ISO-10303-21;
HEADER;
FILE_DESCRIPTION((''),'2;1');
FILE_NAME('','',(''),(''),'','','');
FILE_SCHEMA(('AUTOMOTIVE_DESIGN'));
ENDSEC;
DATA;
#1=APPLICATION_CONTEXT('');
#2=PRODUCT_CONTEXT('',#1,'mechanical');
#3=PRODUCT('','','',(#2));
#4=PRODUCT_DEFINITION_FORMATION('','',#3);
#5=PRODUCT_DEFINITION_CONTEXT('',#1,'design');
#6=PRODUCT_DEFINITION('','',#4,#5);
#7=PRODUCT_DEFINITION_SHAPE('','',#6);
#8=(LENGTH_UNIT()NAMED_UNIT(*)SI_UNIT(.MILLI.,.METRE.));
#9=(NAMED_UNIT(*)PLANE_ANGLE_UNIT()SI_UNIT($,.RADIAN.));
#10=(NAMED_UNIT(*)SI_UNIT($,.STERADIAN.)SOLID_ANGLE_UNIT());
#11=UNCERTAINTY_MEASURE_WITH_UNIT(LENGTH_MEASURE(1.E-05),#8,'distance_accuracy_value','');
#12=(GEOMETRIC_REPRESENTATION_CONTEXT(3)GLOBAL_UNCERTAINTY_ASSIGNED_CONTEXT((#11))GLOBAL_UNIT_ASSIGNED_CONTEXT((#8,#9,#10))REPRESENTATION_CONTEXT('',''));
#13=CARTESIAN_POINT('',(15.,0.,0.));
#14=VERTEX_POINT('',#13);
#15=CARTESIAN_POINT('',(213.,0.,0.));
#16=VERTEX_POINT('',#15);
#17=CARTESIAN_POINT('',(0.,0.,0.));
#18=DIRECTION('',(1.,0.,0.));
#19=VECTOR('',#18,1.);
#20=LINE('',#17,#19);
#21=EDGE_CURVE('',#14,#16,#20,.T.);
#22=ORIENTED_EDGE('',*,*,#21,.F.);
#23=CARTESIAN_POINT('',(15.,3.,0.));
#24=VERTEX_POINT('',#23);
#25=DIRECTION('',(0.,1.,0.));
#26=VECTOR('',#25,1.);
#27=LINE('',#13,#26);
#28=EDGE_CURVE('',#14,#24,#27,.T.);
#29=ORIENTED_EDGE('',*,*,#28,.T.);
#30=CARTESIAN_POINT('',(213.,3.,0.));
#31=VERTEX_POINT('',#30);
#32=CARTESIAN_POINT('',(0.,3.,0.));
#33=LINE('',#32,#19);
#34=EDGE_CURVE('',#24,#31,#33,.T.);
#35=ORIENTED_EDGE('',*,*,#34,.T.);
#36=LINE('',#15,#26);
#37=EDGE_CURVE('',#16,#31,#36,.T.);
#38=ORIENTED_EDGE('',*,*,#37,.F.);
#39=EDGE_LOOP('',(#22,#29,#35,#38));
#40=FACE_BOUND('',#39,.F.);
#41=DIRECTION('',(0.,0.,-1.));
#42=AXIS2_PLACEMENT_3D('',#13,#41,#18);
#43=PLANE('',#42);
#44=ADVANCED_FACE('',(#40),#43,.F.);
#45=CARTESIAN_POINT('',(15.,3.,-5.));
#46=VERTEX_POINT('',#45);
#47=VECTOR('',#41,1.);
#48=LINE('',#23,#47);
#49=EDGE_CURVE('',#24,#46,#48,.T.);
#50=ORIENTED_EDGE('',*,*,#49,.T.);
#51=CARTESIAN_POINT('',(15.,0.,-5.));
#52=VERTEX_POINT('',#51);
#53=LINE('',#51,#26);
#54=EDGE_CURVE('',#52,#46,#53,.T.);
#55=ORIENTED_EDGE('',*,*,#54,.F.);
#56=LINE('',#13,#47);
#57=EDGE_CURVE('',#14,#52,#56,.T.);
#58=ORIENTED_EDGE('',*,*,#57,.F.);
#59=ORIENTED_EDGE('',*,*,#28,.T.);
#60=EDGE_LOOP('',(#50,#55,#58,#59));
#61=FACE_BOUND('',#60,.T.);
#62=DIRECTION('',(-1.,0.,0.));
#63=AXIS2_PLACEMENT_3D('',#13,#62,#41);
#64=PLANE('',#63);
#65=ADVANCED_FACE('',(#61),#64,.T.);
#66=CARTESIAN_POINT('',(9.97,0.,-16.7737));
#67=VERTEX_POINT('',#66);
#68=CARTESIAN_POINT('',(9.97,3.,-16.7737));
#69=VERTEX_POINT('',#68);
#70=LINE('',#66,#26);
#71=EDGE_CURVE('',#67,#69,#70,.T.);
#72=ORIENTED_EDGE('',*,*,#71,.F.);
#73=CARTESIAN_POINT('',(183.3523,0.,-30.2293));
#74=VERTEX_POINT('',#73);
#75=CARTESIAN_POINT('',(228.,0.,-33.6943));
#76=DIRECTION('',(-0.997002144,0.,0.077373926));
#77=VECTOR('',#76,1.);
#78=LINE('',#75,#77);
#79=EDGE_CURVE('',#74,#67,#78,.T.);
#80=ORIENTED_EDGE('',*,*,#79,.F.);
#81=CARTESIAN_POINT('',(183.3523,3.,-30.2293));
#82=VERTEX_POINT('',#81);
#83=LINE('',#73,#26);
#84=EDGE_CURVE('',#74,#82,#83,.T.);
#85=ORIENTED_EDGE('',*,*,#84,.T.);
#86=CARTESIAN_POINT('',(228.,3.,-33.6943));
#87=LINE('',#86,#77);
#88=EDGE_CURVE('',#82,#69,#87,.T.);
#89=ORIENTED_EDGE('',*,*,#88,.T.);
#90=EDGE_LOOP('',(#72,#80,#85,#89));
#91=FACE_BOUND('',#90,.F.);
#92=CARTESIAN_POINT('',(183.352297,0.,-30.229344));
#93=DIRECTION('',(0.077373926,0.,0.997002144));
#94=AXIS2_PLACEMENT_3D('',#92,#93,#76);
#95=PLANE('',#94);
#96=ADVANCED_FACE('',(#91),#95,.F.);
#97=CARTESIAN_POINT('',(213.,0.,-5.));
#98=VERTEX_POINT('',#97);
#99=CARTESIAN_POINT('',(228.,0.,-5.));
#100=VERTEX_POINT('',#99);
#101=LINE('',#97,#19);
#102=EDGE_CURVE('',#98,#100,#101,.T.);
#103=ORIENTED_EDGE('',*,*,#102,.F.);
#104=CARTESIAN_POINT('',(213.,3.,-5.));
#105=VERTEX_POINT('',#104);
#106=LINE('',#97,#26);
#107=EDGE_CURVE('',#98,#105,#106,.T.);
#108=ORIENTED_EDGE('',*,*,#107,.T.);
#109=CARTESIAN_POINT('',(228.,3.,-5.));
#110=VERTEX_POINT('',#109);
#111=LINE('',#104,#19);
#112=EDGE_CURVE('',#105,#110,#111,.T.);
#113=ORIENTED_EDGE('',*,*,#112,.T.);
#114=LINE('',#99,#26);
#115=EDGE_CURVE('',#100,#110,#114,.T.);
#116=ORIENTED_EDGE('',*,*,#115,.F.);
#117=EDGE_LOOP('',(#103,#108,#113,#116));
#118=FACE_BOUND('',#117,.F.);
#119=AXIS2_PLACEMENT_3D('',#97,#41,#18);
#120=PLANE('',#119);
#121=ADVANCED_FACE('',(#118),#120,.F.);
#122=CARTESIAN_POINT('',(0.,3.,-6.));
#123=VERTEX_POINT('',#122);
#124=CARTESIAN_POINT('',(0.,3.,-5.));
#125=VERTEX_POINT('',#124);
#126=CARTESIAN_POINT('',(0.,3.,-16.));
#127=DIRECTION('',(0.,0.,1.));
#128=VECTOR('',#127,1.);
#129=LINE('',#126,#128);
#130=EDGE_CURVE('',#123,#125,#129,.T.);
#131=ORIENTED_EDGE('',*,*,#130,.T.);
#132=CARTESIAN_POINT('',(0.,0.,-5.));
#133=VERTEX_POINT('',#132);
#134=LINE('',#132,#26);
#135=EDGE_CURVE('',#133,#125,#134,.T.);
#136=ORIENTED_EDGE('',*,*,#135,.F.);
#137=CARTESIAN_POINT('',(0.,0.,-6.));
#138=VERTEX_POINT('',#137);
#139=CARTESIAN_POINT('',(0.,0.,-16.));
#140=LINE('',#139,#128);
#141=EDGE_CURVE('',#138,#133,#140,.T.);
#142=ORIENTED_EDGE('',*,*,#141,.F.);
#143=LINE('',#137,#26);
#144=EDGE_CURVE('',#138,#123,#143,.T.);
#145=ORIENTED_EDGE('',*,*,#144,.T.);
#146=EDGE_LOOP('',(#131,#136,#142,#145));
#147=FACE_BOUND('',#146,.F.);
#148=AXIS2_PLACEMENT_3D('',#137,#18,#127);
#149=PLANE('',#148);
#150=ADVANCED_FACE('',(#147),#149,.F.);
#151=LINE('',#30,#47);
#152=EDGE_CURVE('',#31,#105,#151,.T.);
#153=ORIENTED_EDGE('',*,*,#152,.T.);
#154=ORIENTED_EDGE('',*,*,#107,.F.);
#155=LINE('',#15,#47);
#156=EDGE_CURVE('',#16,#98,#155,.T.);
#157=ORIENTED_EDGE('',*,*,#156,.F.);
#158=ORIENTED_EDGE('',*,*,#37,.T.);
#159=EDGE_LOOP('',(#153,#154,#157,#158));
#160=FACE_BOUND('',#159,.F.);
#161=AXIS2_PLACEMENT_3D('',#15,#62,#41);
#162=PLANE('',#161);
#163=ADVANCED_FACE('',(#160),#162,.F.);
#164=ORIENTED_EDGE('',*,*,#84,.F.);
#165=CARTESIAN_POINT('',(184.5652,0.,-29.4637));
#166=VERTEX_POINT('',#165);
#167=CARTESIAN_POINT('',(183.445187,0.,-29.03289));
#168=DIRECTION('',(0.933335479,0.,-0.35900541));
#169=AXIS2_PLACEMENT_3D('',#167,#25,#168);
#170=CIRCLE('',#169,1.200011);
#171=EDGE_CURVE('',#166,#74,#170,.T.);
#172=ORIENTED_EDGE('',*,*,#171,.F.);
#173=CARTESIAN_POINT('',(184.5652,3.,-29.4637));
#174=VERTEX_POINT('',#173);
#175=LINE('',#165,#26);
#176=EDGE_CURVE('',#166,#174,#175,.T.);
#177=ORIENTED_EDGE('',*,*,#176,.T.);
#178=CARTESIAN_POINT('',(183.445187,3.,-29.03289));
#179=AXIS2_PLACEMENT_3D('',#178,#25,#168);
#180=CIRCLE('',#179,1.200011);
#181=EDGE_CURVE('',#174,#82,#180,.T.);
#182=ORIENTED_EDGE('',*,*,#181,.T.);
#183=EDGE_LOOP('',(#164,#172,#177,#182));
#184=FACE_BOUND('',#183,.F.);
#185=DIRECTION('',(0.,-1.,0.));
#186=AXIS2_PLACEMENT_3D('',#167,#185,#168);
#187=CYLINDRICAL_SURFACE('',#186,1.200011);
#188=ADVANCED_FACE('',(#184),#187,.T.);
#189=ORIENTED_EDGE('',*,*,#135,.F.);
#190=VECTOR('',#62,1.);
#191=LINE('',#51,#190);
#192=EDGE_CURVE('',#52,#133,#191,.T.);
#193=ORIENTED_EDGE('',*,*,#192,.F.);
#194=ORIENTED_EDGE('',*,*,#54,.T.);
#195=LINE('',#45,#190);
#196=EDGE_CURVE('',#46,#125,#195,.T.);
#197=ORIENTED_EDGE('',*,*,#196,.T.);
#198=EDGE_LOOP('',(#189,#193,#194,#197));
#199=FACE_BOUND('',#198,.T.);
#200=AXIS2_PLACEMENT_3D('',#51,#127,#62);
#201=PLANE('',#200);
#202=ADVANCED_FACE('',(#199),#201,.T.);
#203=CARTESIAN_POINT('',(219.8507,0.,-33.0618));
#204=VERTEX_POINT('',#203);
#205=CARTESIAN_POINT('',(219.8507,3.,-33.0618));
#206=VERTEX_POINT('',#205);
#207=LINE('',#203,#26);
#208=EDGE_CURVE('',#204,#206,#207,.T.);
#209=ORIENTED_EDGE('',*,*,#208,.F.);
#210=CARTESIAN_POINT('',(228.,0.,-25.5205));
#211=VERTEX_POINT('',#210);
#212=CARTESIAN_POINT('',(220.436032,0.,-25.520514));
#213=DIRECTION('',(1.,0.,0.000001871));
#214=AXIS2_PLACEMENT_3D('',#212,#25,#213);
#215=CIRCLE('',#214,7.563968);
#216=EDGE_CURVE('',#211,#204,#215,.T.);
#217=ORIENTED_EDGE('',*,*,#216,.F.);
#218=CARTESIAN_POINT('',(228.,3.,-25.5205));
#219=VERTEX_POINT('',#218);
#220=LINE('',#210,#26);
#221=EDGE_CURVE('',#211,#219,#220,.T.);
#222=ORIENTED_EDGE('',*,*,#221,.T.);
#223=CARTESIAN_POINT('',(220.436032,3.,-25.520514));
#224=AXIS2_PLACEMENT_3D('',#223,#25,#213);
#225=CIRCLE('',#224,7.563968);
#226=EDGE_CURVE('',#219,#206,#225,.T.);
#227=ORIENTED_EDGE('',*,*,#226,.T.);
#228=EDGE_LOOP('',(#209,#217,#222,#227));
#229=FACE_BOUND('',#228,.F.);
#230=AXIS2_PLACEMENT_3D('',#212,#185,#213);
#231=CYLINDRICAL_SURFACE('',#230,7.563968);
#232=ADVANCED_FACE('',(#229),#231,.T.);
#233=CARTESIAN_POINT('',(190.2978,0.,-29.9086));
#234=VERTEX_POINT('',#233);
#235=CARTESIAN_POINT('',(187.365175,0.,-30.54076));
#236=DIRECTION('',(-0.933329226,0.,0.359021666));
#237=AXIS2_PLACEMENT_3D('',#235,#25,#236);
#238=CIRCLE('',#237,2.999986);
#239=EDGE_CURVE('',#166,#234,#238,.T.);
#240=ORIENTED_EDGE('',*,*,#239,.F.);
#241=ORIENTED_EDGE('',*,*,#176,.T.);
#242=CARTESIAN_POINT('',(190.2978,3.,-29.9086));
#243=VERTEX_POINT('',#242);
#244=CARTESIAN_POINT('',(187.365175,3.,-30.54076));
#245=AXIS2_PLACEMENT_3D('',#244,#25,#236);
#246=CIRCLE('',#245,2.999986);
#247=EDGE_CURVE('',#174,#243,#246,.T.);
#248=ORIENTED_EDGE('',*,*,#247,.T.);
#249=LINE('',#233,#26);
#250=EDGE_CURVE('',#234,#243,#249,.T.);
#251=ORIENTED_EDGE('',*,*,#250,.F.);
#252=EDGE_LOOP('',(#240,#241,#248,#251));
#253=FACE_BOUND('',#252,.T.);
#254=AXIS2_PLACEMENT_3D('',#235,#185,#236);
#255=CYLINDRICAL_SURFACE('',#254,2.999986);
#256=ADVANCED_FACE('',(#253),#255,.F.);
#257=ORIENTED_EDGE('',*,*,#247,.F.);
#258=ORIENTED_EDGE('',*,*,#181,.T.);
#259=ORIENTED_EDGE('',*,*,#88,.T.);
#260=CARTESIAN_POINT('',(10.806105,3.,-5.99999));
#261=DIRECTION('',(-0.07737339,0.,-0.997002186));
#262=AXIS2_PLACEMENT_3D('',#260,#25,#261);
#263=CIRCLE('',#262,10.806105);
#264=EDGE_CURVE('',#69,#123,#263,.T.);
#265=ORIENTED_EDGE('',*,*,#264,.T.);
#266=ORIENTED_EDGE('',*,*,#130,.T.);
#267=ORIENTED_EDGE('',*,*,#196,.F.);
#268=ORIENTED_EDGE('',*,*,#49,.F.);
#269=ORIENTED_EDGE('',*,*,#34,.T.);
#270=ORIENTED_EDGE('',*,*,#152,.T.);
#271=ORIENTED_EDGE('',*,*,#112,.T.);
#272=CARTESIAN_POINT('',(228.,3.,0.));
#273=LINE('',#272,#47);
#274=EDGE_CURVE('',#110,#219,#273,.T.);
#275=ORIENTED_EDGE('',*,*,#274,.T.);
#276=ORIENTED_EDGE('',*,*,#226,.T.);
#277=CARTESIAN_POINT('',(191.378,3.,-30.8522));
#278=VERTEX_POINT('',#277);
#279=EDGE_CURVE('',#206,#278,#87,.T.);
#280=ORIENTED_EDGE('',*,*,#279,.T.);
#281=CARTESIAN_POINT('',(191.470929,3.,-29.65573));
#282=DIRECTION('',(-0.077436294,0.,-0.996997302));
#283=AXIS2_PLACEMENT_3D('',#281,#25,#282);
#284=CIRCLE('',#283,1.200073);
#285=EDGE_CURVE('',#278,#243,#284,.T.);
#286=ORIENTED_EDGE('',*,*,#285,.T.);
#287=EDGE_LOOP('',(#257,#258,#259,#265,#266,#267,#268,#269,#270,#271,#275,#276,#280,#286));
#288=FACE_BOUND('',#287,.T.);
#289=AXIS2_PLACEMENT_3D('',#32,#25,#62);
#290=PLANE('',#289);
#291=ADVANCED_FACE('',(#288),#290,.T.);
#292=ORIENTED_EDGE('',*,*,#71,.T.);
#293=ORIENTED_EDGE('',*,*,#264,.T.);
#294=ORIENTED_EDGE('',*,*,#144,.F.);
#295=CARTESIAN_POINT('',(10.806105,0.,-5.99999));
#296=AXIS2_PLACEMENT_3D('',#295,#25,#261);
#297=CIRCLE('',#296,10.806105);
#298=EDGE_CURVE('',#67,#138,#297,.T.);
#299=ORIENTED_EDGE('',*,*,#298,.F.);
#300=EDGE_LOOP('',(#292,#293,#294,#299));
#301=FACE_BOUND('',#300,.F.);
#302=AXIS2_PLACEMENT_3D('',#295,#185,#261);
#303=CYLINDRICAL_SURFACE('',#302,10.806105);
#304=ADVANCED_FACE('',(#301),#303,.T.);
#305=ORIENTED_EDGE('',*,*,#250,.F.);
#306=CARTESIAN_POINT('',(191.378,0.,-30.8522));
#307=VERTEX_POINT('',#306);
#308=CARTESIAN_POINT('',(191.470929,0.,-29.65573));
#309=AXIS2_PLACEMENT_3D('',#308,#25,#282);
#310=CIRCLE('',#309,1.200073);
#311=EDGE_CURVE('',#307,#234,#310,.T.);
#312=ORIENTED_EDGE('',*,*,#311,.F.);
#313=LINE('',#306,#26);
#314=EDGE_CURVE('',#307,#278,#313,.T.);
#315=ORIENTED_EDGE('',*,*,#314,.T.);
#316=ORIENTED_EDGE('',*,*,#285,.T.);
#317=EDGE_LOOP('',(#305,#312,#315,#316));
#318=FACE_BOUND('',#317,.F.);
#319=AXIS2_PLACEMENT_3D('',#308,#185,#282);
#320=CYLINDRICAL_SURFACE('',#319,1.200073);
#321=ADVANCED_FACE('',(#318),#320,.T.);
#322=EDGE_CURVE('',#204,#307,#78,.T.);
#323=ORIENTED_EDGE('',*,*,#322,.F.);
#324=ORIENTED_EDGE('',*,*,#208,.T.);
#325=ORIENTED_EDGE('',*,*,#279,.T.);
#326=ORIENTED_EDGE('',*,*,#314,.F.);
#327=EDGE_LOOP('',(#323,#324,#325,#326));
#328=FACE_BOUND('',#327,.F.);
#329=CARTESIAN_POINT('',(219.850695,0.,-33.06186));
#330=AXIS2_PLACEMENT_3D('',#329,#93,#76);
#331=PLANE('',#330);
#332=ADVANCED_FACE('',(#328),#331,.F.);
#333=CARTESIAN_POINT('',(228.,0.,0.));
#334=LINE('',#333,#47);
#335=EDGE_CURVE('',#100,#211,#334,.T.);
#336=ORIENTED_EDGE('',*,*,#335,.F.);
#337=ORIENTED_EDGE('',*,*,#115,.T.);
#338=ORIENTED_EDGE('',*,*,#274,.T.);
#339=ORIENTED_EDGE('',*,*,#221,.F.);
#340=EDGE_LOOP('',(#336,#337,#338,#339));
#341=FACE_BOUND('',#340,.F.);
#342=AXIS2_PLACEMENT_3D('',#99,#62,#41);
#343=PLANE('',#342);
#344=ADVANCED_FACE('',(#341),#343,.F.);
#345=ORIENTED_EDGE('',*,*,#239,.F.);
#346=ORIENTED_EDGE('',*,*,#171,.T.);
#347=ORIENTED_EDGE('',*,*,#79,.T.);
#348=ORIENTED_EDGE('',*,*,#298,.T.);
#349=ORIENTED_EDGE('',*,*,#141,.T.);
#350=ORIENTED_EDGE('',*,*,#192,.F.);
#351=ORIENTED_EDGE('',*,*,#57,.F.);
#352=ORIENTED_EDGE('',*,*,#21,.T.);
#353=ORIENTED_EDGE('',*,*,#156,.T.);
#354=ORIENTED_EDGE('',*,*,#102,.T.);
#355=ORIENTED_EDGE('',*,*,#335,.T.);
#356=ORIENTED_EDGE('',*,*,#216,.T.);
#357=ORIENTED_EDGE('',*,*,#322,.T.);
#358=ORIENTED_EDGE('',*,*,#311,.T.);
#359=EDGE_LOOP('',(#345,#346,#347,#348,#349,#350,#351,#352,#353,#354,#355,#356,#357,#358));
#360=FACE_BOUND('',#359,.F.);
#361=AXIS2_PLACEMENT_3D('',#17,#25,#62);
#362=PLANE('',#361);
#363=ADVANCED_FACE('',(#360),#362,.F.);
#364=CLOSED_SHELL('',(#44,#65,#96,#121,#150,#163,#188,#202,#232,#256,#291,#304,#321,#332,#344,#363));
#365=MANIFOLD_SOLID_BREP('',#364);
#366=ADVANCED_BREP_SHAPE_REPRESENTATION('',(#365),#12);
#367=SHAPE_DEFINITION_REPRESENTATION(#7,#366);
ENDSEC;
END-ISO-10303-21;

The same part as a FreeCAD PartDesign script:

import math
import FreeCAD as App
import Part
import Sketcher

doc = App.newDocument("Part")
body = doc.addObject("PartDesign::Body", "Body")

# Sketch on XZ plane
sketch1 = doc.addObject("Sketcher::SketchObject", "Sketch")
body.addObject(sketch1)
sketch1.AttachmentSupport = (doc.XZ_Plane, [""])
sketch1.MapMode = "FlatFace"
sketch1.addGeometry([
    Part.LineSegment(App.Vector(15, -5, 0), App.Vector(15, 0, 0)),  # 0
    Part.LineSegment(App.Vector(15, 0, 0), App.Vector(213, 0, 0)),  # 1
    Part.LineSegment(App.Vector(213, 0, 0), App.Vector(213, -5, 0)),  # 2
    Part.LineSegment(App.Vector(213, -5, 0), App.Vector(228, -5, 0)),  # 3
    Part.LineSegment(App.Vector(228, -5, 0), App.Vector(228, -25.5205, 0)),  # 4
    Part.ArcOfCircle(Part.Circle(App.Vector(220.436, -25.5205, 0), App.Vector(0, 0, 1), 7.564), math.radians(-94.437978), math.radians(0)),  # 5
    Part.LineSegment(App.Vector(219.850695, -33.06186, 0), App.Vector(191.378001, -30.852192, 0)),  # 6
    Part.ArcOfCircle(Part.Circle(App.Vector(191.4709, -29.6558, 0), App.Vector(0, 0, 1), 1.200001), math.radians(-167.838883), math.radians(-94.440086)),  # 7
    Part.ArcOfCircle(Part.Circle(App.Vector(187.3652, -30.5408, 0), App.Vector(0, 0, 1), 3.000024), math.radians(12.165455), math.radians(158.959335)),  # 8
    Part.ArcOfCircle(Part.Circle(App.Vector(183.4452, -29.0329, 0), App.Vector(0, 0, 1), 1.199995), math.radians(-94.440086), math.radians(-21.038882)),  # 9
    Part.LineSegment(App.Vector(183.352297, -30.229344, 0), App.Vector(9.969997, -16.773737, 0)),  # 10
    Part.ArcOfCircle(Part.Circle(App.Vector(10.8061, -6, 0), App.Vector(0, 0, 1), 10.806094), math.radians(180), math.radians(265.562418)),  # 11
    Part.LineSegment(App.Vector(0, -6, 0), App.Vector(0, -5, 0)),  # 12
    Part.LineSegment(App.Vector(0, -5, 0), App.Vector(15, -5, 0)),  # 13
], False)
sketch1.addConstraint([
    Sketcher.Constraint("Coincident", 0, 2, 1, 1),
    Sketcher.Constraint("Coincident", 1, 2, 2, 1),
    Sketcher.Constraint("Coincident", 2, 2, 3, 1),
    Sketcher.Constraint("Coincident", 3, 2, 4, 1),
    Sketcher.Constraint("Coincident", 4, 2, 5, 2),
    Sketcher.Constraint("Coincident", 5, 1, 6, 1),
    Sketcher.Constraint("Coincident", 6, 2, 7, 2),
    Sketcher.Constraint("Coincident", 7, 1, 8, 1),
    Sketcher.Constraint("Coincident", 8, 2, 9, 2),
    Sketcher.Constraint("Coincident", 9, 1, 10, 1),
    Sketcher.Constraint("Coincident", 10, 2, 11, 2),
    Sketcher.Constraint("Coincident", 11, 1, 12, 1),
    Sketcher.Constraint("Coincident", 12, 2, 13, 1),
    Sketcher.Constraint("Coincident", 13, 2, 0, 1),
    Sketcher.Constraint("Vertical", 0),
    Sketcher.Constraint("Horizontal", 1),
    Sketcher.Constraint("Vertical", 2),
    Sketcher.Constraint("Horizontal", 3),
    Sketcher.Constraint("Vertical", 4),
    Sketcher.Constraint("Vertical", 12),
    Sketcher.Constraint("Horizontal", 13),
    Sketcher.Constraint("PointOnObject", 0, 2, -1),
    Sketcher.Constraint("PointOnObject", 11, 1, -2),
    Sketcher.Constraint("Radius", 8, 3.0),
    Sketcher.Constraint("Radius", 7, 1.2),
    Sketcher.Constraint("Radius", 9, 1.2),
    Sketcher.Constraint("DistanceX", 1, 1, 1, 2, 198.0),
    Sketcher.Constraint("DistanceX", 3, 1, 3, 2, 15.0),
    Sketcher.Constraint("DistanceX", 13, 1, 13, 2, 15.0),
    Sketcher.Constraint("DistanceY", 0, 1, 0, 2, 5.0),
    Sketcher.Constraint("DistanceY", 2, 2, 2, 1, 5.0),
    Sketcher.Constraint("DistanceY", 12, 1, 12, 2, 1.0),
    Sketcher.Constraint("Radius", 5, 7.564),
    Sketcher.Constraint("Radius", 11, 10.806),
    Sketcher.Constraint("DistanceY", 11, 3, 12, 2, 1.0),
    Sketcher.Constraint("DistanceX", 8, 2, 8, 3, 2.8),
    Sketcher.Constraint("DistanceX", -1, 1, 10, 2, 9.97),
    Sketcher.Constraint("DistanceX", 9, 3, 8, 3, 3.92),
    Sketcher.Constraint("DistanceY", 8, 2, 10, 2, 12.69),
    Sketcher.Constraint("DistanceY", 4, 2, 4, 1, 20.5205),
    Sketcher.Constraint("DistanceX", -1, 1, 7, 3, 191.471),
    Sketcher.Constraint("DistanceX", -1, 1, 6, 2, 191.378),
    Sketcher.Constraint("DistanceY", 8, 3, 7, 3, 0.885),
    Sketcher.Constraint("DistanceY", 5, 1, 7, 3, 3.406),
    Sketcher.Constraint("DistanceX", 7, 1, 7, 3, 1.173),
    Sketcher.Constraint("DistanceX", 9, 1, 9, 3, 0.093),
    Sketcher.Constraint("Distance", 6, 28.5583),
])
pad1 = doc.addObject("PartDesign::Pad", "Pad")
body.addObject(pad1)
pad1.Profile = sketch1
pad1.Length = 3
pad1.Reversed = True

doc.recompute()
